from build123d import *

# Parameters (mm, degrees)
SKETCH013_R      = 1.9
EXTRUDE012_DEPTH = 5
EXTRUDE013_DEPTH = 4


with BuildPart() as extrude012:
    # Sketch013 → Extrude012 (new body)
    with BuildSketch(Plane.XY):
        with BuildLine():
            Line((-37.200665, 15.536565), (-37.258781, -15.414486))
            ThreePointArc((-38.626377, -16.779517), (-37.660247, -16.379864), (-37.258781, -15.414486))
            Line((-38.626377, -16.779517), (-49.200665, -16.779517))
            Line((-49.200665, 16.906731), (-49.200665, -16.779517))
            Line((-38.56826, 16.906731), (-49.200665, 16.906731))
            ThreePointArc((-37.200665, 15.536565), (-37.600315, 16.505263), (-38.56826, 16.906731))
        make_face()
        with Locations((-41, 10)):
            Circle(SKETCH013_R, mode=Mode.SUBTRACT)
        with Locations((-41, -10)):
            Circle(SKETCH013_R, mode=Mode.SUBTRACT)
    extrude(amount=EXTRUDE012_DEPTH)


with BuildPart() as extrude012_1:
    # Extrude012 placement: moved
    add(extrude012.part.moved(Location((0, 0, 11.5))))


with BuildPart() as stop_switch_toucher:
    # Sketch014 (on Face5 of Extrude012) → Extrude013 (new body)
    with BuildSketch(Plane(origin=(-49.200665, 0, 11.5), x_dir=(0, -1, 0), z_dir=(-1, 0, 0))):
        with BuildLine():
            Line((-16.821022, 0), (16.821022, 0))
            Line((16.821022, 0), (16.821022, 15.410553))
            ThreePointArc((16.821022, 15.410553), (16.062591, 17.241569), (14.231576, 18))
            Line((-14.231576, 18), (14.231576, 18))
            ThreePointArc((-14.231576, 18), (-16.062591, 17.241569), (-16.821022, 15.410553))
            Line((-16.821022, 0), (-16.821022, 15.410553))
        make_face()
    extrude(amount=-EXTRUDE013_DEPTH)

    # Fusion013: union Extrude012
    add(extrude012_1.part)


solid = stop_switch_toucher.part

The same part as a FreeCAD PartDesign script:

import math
import FreeCAD as App
import Part
import Sketcher

V = App.Vector
Q = App.Units.Quantity

doc = App.newDocument("Part")
body = doc.addObject("PartDesign::Body", "Body")

# Sketch on XY plane
sketch1 = body.newObject("Sketcher::SketchObject", "Sketch")
sketch1.AttachmentSupport = (doc.getObject("XY_Plane"), [""])
sketch1.MapMode = "FlatFace"
sketch1.addGeometry(Part.LineSegment(V(-37.258781, -15.414486, 0), V(-37.200665, 15.536565, 0)), False)
sketch1.addGeometry(Part.ArcOfCircle(Part.Circle(V(-38.568259, 15.539134, 0), V(0, 0, 1), 1.367597), math.radians(-0.107644), math.radians(90.000033)), False)
sketch1.addGeometry(Part.LineSegment(V(-38.56826, 16.906731, 0), V(-49.200665, 16.906731, 0)), False)
sketch1.addGeometry(Part.LineSegment(V(-49.200665, 16.906731, 0), V(-49.200665, -16.779517, 0)), False)
sketch1.addGeometry(Part.LineSegment(V(-49.200665, -16.779517, 0), V(-38.626377, -16.779517, 0)), False)
sketch1.addGeometry(Part.ArcOfCircle(Part.Circle(V(-38.626377, -15.411919, 0), V(0, 0, 1), 1.367598), math.radians(-90.000003), math.radians(-0.107559)), False)
sketch1.addGeometry(Part.Circle(V(-41, -10, 0), V(0, 0, 1), 1.9), False)
sketch1.addGeometry(Part.Circle(V(-41, 10, 0), V(0, 0, 1), 1.9), False)
sketch1.addConstraint(Sketcher.Constraint("Tangent", 0, 2, 1, 1))
sketch1.addConstraint(Sketcher.Constraint("Tangent", 1, 2, 2, 1))
sketch1.addConstraint(Sketcher.Constraint("Coincident", 2, 2, 3, 1))
sketch1.addConstraint(Sketcher.Constraint("Coincident", 3, 2, 4, 1))
sketch1.addConstraint(Sketcher.Constraint("Tangent", 4, 2, 5, 1))
sketch1.addConstraint(Sketcher.Constraint("Tangent", 5, 2, 0, 1))
sketch1.addConstraint(Sketcher.Constraint("Horizontal", 2))
sketch1.addConstraint(Sketcher.Constraint("Vertical", 3))
sketch1.addConstraint(Sketcher.Constraint("Horizontal", 4))
sketch1.addConstraint(Sketcher.Constraint("Equal", 1, 5))
sketch1.addConstraint(Sketcher.Constraint("Equal", 6, 7))
sketch1.addConstraint(Sketcher.Constraint("Symmetric", 6, 3, 7, 3, -1))
sketch1.addConstraint(Sketcher.Constraint("Diameter", 6, Q("3.8 mm")))
sketch1.addConstraint(Sketcher.Constraint("DistanceX", 6, 3, -1, 1, Q("41 mm")))
sketch1.addConstraint(Sketcher.Constraint("DistanceY", 6, 3, -1, 1, Q("10 mm")))
sketch1.addConstraint(Sketcher.Constraint("DistanceX", 2, 2, 0, 2, Q("12 mm")))
sketch1.addConstraint(Sketcher.Constraint("Radius", 5, Q("1.367598 mm")))
sketch1.addConstraint(Sketcher.Constraint("DistanceX", 4, 1, 4, 2, Q("10.574288 mm")))
sketch1.addConstraint(Sketcher.Constraint("DistanceY", 3, 2, 3, 1, Q("33.686248 mm")))
sketch1.addConstraint(Sketcher.Constraint("DistanceX", 1, 3, -1, 1, Q("38.568259 mm")))
sketch1.addConstraint(Sketcher.Constraint("DistanceY", 5, 3, -1, 1, Q("15.411919 mm")))
pad1 = body.newObject("PartDesign::Pad", "Pad")
pad1.Profile = sketch1
pad1.Length = 5
body2 = doc.addObject("PartDesign::Body", "Body001")
doc.recompute()

body.Placement = App.Placement(V(0, 0, 11.5), App.Rotation(V(0, 0, 1), 0))
boolean = body2.newObject("PartDesign::Boolean", "Boolean")
boolean.Type = "Fuse"
boolean.addObjects([body])
body3 = doc.addObject("PartDesign::Body", "Body002")

# Sketch on YZ plane
sketch2 = body3.newObject("Sketcher::SketchObject", "Sketch001")
sketch2.AttachmentSupport = (doc.getObject("YZ_Plane002"), [""])
sketch2.MapMode = "FlatFace"
sketch2.AttachmentOffset = App.Placement(V(0, 0, -49.200665), App.Rotation())
sketch2.addGeometry(Part.LineSegment(V(16.821022, 11.5, 0), V(-16.821022, 11.5, 0)), False)
sketch2.addGeometry(Part.LineSegment(V(-16.821022, 11.5, 0), V(-16.821022, 26.910553, 0)), False)
sketch2.addGeometry(Part.ArcOfCircle(Part.Circle(V(-14.231577, 26.910555, 0), V(0, 0, 1), 2.589445), math.radians(89.999987), math.radians(180.000035)), False)
sketch2.addGeometry(Part.LineSegment(V(-14.231576, 29.5, 0), V(14.231576, 29.5, 0)), False)
sketch2.addGeometry(Part.ArcOfCircle(Part.Circle(V(14.231577, 26.910555, 0), V(0, 0, 1), 2.589445), math.radians(-0.000035), math.radians(90.000013)), False)
sketch2.addGeometry(Part.LineSegment(V(16.821022, 26.910553, 0), V(16.821022, 11.5, 0)), False)
sketch2.addConstraint(Sketcher.Constraint("Coincident", 0, 2, 1, 1))
sketch2.addConstraint(Sketcher.Constraint("Tangent", 1, 2, 2, 2))
sketch2.addConstraint(Sketcher.Constraint("Tangent", 2, 1, 3, 1))
sketch2.addConstraint(Sketcher.Constraint("Tangent", 3, 2, 4, 2))
sketch2.addConstraint(Sketcher.Constraint("Tangent", 4, 1, 5, 1))
sketch2.addConstraint(Sketcher.Constraint("Coincident", 5, 2, 0, 1))
sketch2.addConstraint(Sketcher.Constraint("Horizontal", 0))
sketch2.addConstraint(Sketcher.Constraint("Vertical", 1))
sketch2.addConstraint(Sketcher.Constraint("Horizontal", 3))
sketch2.addConstraint(Sketcher.Constraint("Vertical", 5))
sketch2.addConstraint(Sketcher.Constraint("Equal", 2, 4))
sketch2.addConstraint(Sketcher.Constraint("DistanceY", 0, 2, 2, 1, Q("18 mm")))
sketch2.addConstraint(Sketcher.Constraint("DistanceY", -1, 1, 0, 2, Q("11.5 mm")))
sketch2.addConstraint(Sketcher.Constraint("Radius", 2, Q("2.589445 mm")))
sketch2.addConstraint(Sketcher.Constraint("DistanceX", 0, 2, 4, 3, Q("31.052599 mm")))
sketch2.addConstraint(Sketcher.Constraint("DistanceX", 0, 2, -1, 1, Q("16.821022 mm")))
pad2 = body3.newObject("PartDesign::Pad", "Pad001")
pad2.Profile = sketch2
pad2.Length = 4
doc.recompute()

boolean2 = body3.newObject("PartDesign::Boolean", "Boolean001")
boolean2.Type = "Fuse"
boolean2.addObjects([body2])

doc.recompute()
